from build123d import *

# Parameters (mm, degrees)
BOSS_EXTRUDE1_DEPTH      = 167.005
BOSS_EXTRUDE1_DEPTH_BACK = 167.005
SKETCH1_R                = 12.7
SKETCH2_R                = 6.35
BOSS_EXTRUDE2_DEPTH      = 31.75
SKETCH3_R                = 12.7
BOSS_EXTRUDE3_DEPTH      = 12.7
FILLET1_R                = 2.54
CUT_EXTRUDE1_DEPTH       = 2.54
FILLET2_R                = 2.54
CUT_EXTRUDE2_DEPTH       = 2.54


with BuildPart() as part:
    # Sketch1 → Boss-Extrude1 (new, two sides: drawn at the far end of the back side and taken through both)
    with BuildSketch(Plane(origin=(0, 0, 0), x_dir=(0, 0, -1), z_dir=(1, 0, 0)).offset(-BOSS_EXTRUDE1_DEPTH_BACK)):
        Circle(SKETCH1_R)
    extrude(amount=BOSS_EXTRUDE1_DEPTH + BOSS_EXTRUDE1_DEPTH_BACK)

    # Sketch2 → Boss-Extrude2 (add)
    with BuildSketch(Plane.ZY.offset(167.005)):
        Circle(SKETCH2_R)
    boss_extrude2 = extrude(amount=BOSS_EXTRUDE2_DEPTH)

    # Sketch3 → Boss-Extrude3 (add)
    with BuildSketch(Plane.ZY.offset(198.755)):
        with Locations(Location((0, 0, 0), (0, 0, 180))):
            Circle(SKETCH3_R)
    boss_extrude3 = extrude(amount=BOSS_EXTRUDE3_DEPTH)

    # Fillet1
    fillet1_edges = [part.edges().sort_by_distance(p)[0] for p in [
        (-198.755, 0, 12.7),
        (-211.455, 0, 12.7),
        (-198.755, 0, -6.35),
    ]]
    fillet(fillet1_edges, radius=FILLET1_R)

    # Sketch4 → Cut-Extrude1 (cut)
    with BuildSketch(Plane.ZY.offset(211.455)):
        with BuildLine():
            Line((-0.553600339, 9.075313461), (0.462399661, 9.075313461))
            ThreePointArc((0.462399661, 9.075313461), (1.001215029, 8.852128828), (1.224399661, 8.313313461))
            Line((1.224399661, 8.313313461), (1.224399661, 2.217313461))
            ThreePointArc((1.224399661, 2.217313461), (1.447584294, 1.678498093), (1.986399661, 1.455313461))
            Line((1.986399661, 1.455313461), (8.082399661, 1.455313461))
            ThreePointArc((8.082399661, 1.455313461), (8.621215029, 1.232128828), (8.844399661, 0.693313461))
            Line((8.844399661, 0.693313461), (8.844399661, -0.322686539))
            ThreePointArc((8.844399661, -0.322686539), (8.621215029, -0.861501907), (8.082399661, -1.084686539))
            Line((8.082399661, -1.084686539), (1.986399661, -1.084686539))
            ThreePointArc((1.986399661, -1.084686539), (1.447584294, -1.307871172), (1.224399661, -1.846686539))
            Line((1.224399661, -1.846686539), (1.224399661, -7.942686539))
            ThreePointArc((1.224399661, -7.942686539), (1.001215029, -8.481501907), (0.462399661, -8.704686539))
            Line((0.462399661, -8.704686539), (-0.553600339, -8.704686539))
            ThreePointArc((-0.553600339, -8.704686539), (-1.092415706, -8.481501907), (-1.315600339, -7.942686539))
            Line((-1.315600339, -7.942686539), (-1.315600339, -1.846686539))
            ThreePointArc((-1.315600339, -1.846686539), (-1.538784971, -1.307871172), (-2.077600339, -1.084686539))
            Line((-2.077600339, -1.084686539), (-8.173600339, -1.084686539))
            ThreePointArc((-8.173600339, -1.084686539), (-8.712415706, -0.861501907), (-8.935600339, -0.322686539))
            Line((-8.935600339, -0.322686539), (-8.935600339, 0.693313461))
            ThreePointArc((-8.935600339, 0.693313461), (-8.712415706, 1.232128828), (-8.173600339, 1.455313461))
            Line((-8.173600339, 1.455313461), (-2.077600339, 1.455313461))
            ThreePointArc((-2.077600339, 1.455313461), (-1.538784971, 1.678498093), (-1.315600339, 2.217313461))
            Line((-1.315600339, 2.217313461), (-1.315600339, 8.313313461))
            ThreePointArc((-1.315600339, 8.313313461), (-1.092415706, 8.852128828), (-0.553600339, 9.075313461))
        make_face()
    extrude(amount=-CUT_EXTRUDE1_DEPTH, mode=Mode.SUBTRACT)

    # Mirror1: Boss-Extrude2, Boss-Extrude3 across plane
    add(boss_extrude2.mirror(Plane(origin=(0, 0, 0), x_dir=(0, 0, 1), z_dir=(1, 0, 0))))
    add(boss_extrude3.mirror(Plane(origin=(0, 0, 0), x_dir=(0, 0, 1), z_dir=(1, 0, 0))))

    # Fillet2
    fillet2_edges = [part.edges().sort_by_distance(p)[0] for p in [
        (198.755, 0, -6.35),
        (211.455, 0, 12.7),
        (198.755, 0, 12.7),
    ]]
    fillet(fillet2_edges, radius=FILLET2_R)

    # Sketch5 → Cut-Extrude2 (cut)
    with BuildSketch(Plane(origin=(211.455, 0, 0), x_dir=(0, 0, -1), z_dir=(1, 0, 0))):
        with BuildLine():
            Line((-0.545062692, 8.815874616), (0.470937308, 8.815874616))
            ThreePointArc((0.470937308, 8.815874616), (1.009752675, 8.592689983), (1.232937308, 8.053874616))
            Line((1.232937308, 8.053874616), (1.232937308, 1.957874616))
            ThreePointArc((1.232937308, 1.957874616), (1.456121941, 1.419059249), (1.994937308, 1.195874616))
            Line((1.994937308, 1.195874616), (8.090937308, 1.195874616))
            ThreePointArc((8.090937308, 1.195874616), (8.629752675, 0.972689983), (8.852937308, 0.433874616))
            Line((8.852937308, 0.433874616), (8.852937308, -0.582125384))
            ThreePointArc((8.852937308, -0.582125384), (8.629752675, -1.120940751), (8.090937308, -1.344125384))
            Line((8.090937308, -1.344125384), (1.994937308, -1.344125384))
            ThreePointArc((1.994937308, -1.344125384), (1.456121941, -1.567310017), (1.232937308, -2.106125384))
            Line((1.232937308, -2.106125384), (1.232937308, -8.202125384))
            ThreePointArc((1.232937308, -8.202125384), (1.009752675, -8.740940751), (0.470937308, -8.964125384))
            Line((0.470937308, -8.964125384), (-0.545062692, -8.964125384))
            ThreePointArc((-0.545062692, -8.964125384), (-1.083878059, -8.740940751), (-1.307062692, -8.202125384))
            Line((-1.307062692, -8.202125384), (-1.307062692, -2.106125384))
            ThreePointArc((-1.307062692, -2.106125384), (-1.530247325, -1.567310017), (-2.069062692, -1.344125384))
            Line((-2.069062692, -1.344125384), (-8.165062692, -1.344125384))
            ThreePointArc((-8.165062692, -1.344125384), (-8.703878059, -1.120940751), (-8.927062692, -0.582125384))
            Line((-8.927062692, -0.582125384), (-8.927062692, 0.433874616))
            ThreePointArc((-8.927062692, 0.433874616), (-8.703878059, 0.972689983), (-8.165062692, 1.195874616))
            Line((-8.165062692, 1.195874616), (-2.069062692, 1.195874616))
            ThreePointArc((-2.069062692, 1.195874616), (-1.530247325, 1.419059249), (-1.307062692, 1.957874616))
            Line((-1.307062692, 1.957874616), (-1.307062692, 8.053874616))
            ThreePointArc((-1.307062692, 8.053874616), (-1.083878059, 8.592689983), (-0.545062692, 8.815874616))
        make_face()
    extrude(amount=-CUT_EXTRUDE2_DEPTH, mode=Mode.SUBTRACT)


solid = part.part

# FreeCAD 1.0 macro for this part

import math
import FreeCAD as App
import Part
import Sketcher
Q = App.Units.Quantity


def edges_at(feature, points):
    """Names of the edges that pass closest to the given points."""
    edges = feature.Shape.Edges
    near = lambda p: min(range(len(edges)), key=lambda i: edges[i].distToShape(Part.Vertex(*p))[0])
    return sorted({f"Edge{near(p) + 1}" for p in points})

doc = App.newDocument("Part")
body = doc.addObject("PartDesign::Body", "Body")

# Sketch on YZ plane
sketch1 = body.newObject("Sketcher::SketchObject", "Sketch")
sketch1.AttachmentSupport = (doc.getObject("YZ_Plane"), [""])
sketch1.MapMode = "FlatFace"
sketch1.addGeometry(Part.Circle(App.Vector(0, 0, 0), App.Vector(0, 0, 1), 13), False)
sketch1.addConstraint(Sketcher.Constraint("Coincident", 0, 3, -1, 1))
sketch1.addConstraint(Sketcher.Constraint("Diameter", 0, Q("1 in")))
pad1 = body.newObject("PartDesign::Pad", "Pad")
pad1.Profile = sketch1
pad1.Type = "TwoLengths"
pad1.Length = Q("6.575 in")
pad1.Length2 = Q("6.575 in")

# Sketch on YZ plane
sketch2 = body.newObject("Sketcher::SketchObject", "Sketch001")
sketch2.AttachmentSupport = (doc.getObject("YZ_Plane"), [""])
sketch2.MapMode = "FlatFace"
sketch2.AttachmentOffset = App.Placement(App.Vector(0, 0, -6.575 * 25.4), App.Rotation())
sketch2.addGeometry(Part.Circle(App.Vector(0, 0, 0), App.Vector(0, 0, 1), 6), False)
sketch2.addConstraint(Sketcher.Constraint("Coincident", 0, 3, -1, 1))
sketch2.addConstraint(Sketcher.Constraint("Diameter", 0, Q("0.5 in")))
pad2 = body.newObject("PartDesign::Pad", "Pad001")
pad2.Profile = sketch2
pad2.Length = Q("1.25 in")
pad2.Reversed = True

# Sketch on YZ plane
sketch3 = body.newObject("Sketcher::SketchObject", "Sketch002")
sketch3.AttachmentSupport = (doc.getObject("YZ_Plane"), [""])
sketch3.MapMode = "FlatFace"
sketch3.AttachmentOffset = App.Placement(App.Vector(0, 0, -7.825 * 25.4), App.Rotation())
sketch3.addGeometry(Part.Circle(App.Vector(0, 0, 0), App.Vector(0, 0, 1), 13), False)
sketch3.addConstraint(Sketcher.Constraint("Coincident", 0, 3, -1, 1))
sketch3.addConstraint(Sketcher.Constraint("Diameter", 0, Q("1 in")))
pad3 = body.newObject("PartDesign::Pad", "Pad002")
pad3.Profile = sketch3
pad3.Length = Q("0.5 in")
pad3.Reversed = True
doc.recompute()

fillet = body.newObject("PartDesign::Fillet", "Fillet")
fillet.Base = (pad3, edges_at(pad3, [(-198.755, 0, 12.7), (-211.455, 0, 12.7), (-198.755, 0, -6.35)]))
fillet.Radius = Q("0.1 in")

# Sketch on YZ plane
sketch4 = body.newObject("Sketcher::SketchObject", "Sketch003")
sketch4.AttachmentSupport = (doc.getObject("YZ_Plane"), [""])
sketch4.MapMode = "FlatFace"
sketch4.AttachmentOffset = App.Placement(App.Vector(0, 0, -8.325 * 25.4), App.Rotation())
sketch4.addGeometry(Part.LineSegment(App.Vector(9.1, 0.5, 0), App.Vector(9.1, -0.6, 0)), False)
sketch4.addGeometry(Part.ArcOfCircle(Part.Circle(App.Vector(8.3, -0.6, 0), App.Vector(0, 0, 1), 0.8), math.radians(-90), math.radians(0)), False)
sketch4.addGeometry(Part.LineSegment(App.Vector(8.3, -1.3, 0), App.Vector(2.2, -1.3, 0)), False)
sketch4.addGeometry(Part.ArcOfCircle(Part.Circle(App.Vector(2.2, -2.1, 0), App.Vector(0, 0, 1), 0.8), math.radians(90), math.radians(180)), False)
sketch4.addGeometry(Part.LineSegment(App.Vector(1.5, -2.1, 0), App.Vector(1.5, -8.2, 0)), False)
sketch4.addGeometry(Part.ArcOfCircle(Part.Circle(App.Vector(0.7, -8.2, 0), App.Vector(0, 0, 1), 0.8), math.radians(-90), math.radians(0)), False)
sketch4.addGeometry(Part.LineSegment(App.Vector(0.7, -8.9, 0), App.Vector(-0.3, -8.9, 0)), False)
sketch4.addGeometry(Part.ArcOfCircle(Part.Circle(App.Vector(-0.3, -8.2, 0), App.Vector(0, 0, 1), 0.8), math.radians(180), math.radians(270)), False)
sketch4.addGeometry(Part.LineSegment(App.Vector(-1.1, -8.2, 0), App.Vector(-1.1, -2.1, 0)), False)
sketch4.addGeometry(Part.ArcOfCircle(Part.Circle(App.Vector(-1.8, -2.1, 0), App.Vector(0, 0, 1), 0.8), math.radians(0), math.radians(90)), False)
sketch4.addGeometry(Part.LineSegment(App.Vector(-1.8, -1.3, 0), App.Vector(-7.9, -1.3, 0)), False)
sketch4.addGeometry(Part.ArcOfCircle(Part.Circle(App.Vector(-7.9, -0.6, 0), App.Vector(0, 0, 1), 0.8), math.radians(180), math.radians(270)), False)
sketch4.addGeometry(Part.LineSegment(App.Vector(-8.7, -0.6, 0), App.Vector(-8.7, 0.5, 0)), False)
sketch4.addGeometry(Part.ArcOfCircle(Part.Circle(App.Vector(-7.9, 0.5, 0), App.Vector(0, 0, 1), 0.8), math.radians(90), math.radians(180)), False)
sketch4.addGeometry(Part.LineSegment(App.Vector(-7.9, 1.2, 0), App.Vector(-1.8, 1.2, 0)), False)
sketch4.addGeometry(Part.ArcOfCircle(Part.Circle(App.Vector(-1.8, 2, 0), App.Vector(0, 0, 1), 0.8), math.radians(-90), math.radians(0)), False)
sketch4.addGeometry(Part.LineSegment(App.Vector(-1.1, 2, 0), App.Vector(-1.1, 8.1, 0)), False)
sketch4.addGeometry(Part.ArcOfCircle(Part.Circle(App.Vector(-0.3, 8.1, 0), App.Vector(0, 0, 1), 0.8), math.radians(90), math.radians(180)), False)
sketch4.addGeometry(Part.LineSegment(App.Vector(-0.3, 8.8, 0), App.Vector(0.7, 8.8, 0)), False)
sketch4.addGeometry(Part.ArcOfCircle(Part.Circle(App.Vector(0.7, 8.1, 0), App.Vector(0, 0, 1), 0.8), math.radians(0), math.radians(90)), False)
sketch4.addGeometry(Part.LineSegment(App.Vector(1.5, 8.1, 0), App.Vector(1.5, 2, 0)), False)
sketch4.addGeometry(Part.ArcOfCircle(Part.Circle(App.Vector(2.2, 2, 0), App.Vector(0, 0, 1), 0.8), math.radians(180), math.radians(270)), False)
sketch4.addGeometry(Part.LineSegment(App.Vector(2.2, 1.2, 0), App.Vector(8.3, 1.2, 0)), False)
sketch4.addGeometry(Part.ArcOfCircle(Part.Circle(App.Vector(8.3, 0.5, 0), App.Vector(0, 0, 1), 0.8), math.radians(0), math.radians(90)), False)
sketch4.addConstraint(Sketcher.Constraint("Tangent", 0, 2, 1, 2))
sketch4.addConstraint(Sketcher.Constraint("Tangent", 1, 1, 2, 1))
sketch4.addConstraint(Sketcher.Constraint("Tangent", 2, 2, 3, 1))
sketch4.addConstraint(Sketcher.Constraint("Tangent", 3, 2, 4, 1))
sketch4.addConstraint(Sketcher.Constraint("Tangent", 4, 2, 5, 2))
sketch4.addConstraint(Sketcher.Constraint("Tangent", 5, 1, 6, 1))
sketch4.addConstraint(Sketcher.Constraint("Tangent", 6, 2, 7, 2))
sketch4.addConstraint(Sketcher.Constraint("Tangent", 7, 1, 8, 1))
sketch4.addConstraint(Sketcher.Constraint("Tangent", 8, 2, 9, 1))
sketch4.addConstraint(Sketcher.Constraint("Tangent", 9, 2, 10, 1))
sketch4.addConstraint(Sketcher.Constraint("Tangent", 10, 2, 11, 2))
sketch4.addConstraint(Sketcher.Constraint("Tangent", 11, 1, 12, 1))
sketch4.addConstraint(Sketcher.Constraint("Tangent", 12, 2, 13, 2))
sketch4.addConstraint(Sketcher.Constraint("Tangent", 13, 1, 14, 1))
sketch4.addConstraint(Sketcher.Constraint("Tangent", 14, 2, 15, 1))
sketch4.addConstraint(Sketcher.Constraint("Tangent", 15, 2, 16, 1))
sketch4.addConstraint(Sketcher.Constraint("Tangent", 16, 2, 17, 2))
sketch4.addConstraint(Sketcher.Constraint("Tangent", 17, 1, 18, 1))
sketch4.addConstraint(Sketcher.Constraint("Tangent", 18, 2, 19, 2))
sketch4.addConstraint(Sketcher.Constraint("Tangent", 19, 1, 20, 1))
sketch4.addConstraint(Sketcher.Constraint("Tangent", 20, 2, 21, 1))
sketch4.addConstraint(Sketcher.Constraint("Tangent", 21, 2, 22, 1))
sketch4.addConstraint(Sketcher.Constraint("Tangent", 22, 2, 23, 2))
sketch4.addConstraint(Sketcher.Constraint("Tangent", 23, 1, 0, 1))
sketch4.addConstraint(Sketcher.Constraint("Vertical", 0))
sketch4.addConstraint(Sketcher.Constraint("Horizontal", 2))
sketch4.addConstraint(Sketcher.Constraint("Vertical", 4))
sketch4.addConstraint(Sketcher.Constraint("Horizontal", 6))
sketch4.addConstraint(Sketcher.Constraint("Vertical", 8))
sketch4.addConstraint(Sketcher.Constraint("Horizontal", 10))
sketch4.addConstraint(Sketcher.Constraint("Vertical", 12))
sketch4.addConstraint(Sketcher.Constraint("Horizontal", 14))
sketch4.addConstraint(Sketcher.Constraint("Vertical", 16))
sketch4.addConstraint(Sketcher.Constraint("Horizontal", 18))
sketch4.addConstraint(Sketcher.Constraint("Vertical", 20))
sketch4.addConstraint(Sketcher.Constraint("Horizontal", 22))
sketch4.addConstraint(Sketcher.Constraint("Equal", 1, 3))
sketch4.addConstraint(Sketcher.Constraint("Equal", 3, 5))
sketch4.addConstraint(Sketcher.Constraint("Equal", 5, 7))
sketch4.addConstraint(Sketcher.Constraint("Equal", 7, 9))
sketch4.addConstraint(Sketcher.Constraint("Equal", 9, 11))
sketch4.addConstraint(Sketcher.Constraint("Equal", 11, 13))
sketch4.addConstraint(Sketcher.Constraint("Equal", 13, 15))
sketch4.addConstraint(Sketcher.Constraint("Equal", 15, 17))
sketch4.addConstraint(Sketcher.Constraint("Equal", 17, 19))
sketch4.addConstraint(Sketcher.Constraint("Equal", 19, 21))
sketch4.addConstraint(Sketcher.Constraint("Equal", 21, 23))
sketch4.addConstraint(Sketcher.Constraint("Horizontal", 3, 3, 9, 3))
sketch4.addConstraint(Sketcher.Constraint("Horizontal", 15, 3, 21, 3))
sketch4.addConstraint(Sketcher.Constraint("Vertical", 9, 3, 15, 3))
sketch4.addConstraint(Sketcher.Constraint("Vertical", 5, 3, 19, 3))
sketch4.addConstraint(Sketcher.Constraint("Equal", 2, 10))
sketch4.addConstraint(Sketcher.Constraint("Equal", 18, 0))
sketch4.addConstraint(Sketcher.Constraint("Equal", 22, 4))
sketch4.addConstraint(Sketcher.Constraint("Equal", 8, 16))
sketch4.addConstraint(Sketcher.Constraint("Radius", 1, Q("0.03 in")))
sketch4.addConstraint(Sketcher.Constraint("DistanceX", 2, 2, 2, 1, Q("0.24 in")))
sketch4.addConstraint(Sketcher.Constraint("DistanceX", 6, 2, 6, 1, Q("0.04 in")))
sketch4.addConstraint(Sketcher.Constraint("DistanceY", 1, 3, -1, 1, 0.5536))
sketch4.addConstraint(Sketcher.Constraint("DistanceX", -1, 1, 1, 3, 8.313313))
pocket1 = body.newObject("PartDesign::Pocket", "Pocket")
pocket1.Profile = sketch4
pocket1.Length = Q("0.1 in")
pocket1.Reversed = True
doc.recompute()

mirrored = body.newObject("PartDesign::Mirrored", "Mirrored")
mirrored.Originals = [pad2, pad3]
mirrored.MirrorPlane = (doc.getObject("YZ_Plane"), [""])
body.Tip = mirrored
doc.recompute()

fillet2 = body.newObject("PartDesign::Fillet", "Fillet001")
fillet2.Base = (mirrored, edges_at(mirrored, [(198.755, 0, -6.35), (211.455, 0, 12.7), (198.755, 0, 12.7)]))
fillet2.Radius = Q("0.1 in")

# Sketch on YZ plane
sketch5 = body.newObject("Sketcher::SketchObject", "Sketch004")
sketch5.AttachmentSupport = (doc.getObject("YZ_Plane"), [""])
sketch5.MapMode = "FlatFace"
sketch5.AttachmentOffset = App.Placement(App.Vector(0, 0, 8.325 * 25.4), App.Rotation())
sketch5.addGeometry(Part.LineSegment(App.Vector(8.8, -0.5, 0), App.Vector(8.8, 0.5, 0)), False)
sketch5.addGeometry(Part.ArcOfCircle(Part.Circle(App.Vector(8.1, 0.5, 0), App.Vector(0, 0, 1), 0.8), math.radians(0), math.radians(90)), False)
sketch5.addGeometry(Part.LineSegment(App.Vector(8.1, 1.3, 0), App.Vector(2, 1.3, 0)), False)
sketch5.addGeometry(Part.ArcOfCircle(Part.Circle(App.Vector(2, 2.1, 0), App.Vector(0, 0, 1), 0.8), math.radians(-180), math.radians(-90)), False)
sketch5.addGeometry(Part.LineSegment(App.Vector(1.2, 2.1, 0), App.Vector(1.2, 8.2, 0)), False)
sketch5.addGeometry(Part.ArcOfCircle(Part.Circle(App.Vector(0.4, 8.2, 0), App.Vector(0, 0, 1), 0.8), math.radians(0), math.radians(90)), False)
sketch5.addGeometry(Part.LineSegment(App.Vector(0.4, 8.9, 0), App.Vector(-0.6, 8.9, 0)), False)
sketch5.addGeometry(Part.ArcOfCircle(Part.Circle(App.Vector(-0.6, 8.2, 0), App.Vector(0, 0, 1), 0.8), math.radians(90), math.radians(180)), False)
sketch5.addGeometry(Part.LineSegment(App.Vector(-1.3, 8.2, 0), App.Vector(-1.3, 2.1, 0)), False)
sketch5.addGeometry(Part.ArcOfCircle(Part.Circle(App.Vector(-2.1, 2.1, 0), App.Vector(0, 0, 1), 0.8), math.radians(-90), math.radians(0)), False)
sketch5.addGeometry(Part.LineSegment(App.Vector(-2.1, 1.3, 0), App.Vector(-8.2, 1.3, 0)), False)
sketch5.addGeometry(Part.ArcOfCircle(Part.Circle(App.Vector(-8.2, 0.5, 0), App.Vector(0, 0, 1), 0.8), math.radians(90), math.radians(180)), False)
sketch5.addGeometry(Part.LineSegment(App.Vector(-9, 0.5, 0), App.Vector(-9, -0.5, 0)), False)
sketch5.addGeometry(Part.ArcOfCircle(Part.Circle(App.Vector(-8.2, -0.5, 0), App.Vector(0, 0, 1), 0.8), math.radians(-180), math.radians(-90)), False)
sketch5.addGeometry(Part.LineSegment(App.Vector(-8.2, -1.2, 0), App.Vector(-2.1, -1.2, 0)), False)
sketch5.addGeometry(Part.ArcOfCircle(Part.Circle(App.Vector(-2.1, -2, 0), App.Vector(0, 0, 1), 0.8), math.radians(0), math.radians(90)), False)
sketch5.addGeometry(Part.LineSegment(App.Vector(-1.3, -2, 0), App.Vector(-1.3, -8.1, 0)), False)
sketch5.addGeometry(Part.ArcOfCircle(Part.Circle(App.Vector(-0.6, -8.1, 0), App.Vector(0, 0, 1), 0.8), math.radians(-180), math.radians(-90)), False)
sketch5.addGeometry(Part.LineSegment(App.Vector(-0.6, -8.9, 0), App.Vector(0.4, -8.9, 0)), False)
sketch5.addGeometry(Part.ArcOfCircle(Part.Circle(App.Vector(0.4, -8.1, 0), App.Vector(0, 0, 1), 0.8), math.radians(-90), math.radians(0)), False)
sketch5.addGeometry(Part.LineSegment(App.Vector(1.2, -8.1, 0), App.Vector(1.2, -2, 0)), False)
sketch5.addGeometry(Part.ArcOfCircle(Part.Circle(App.Vector(2, -2, 0), App.Vector(0, 0, 1), 0.8), math.radians(90), math.radians(180)), False)
sketch5.addGeometry(Part.LineSegment(App.Vector(2, -1.2, 0), App.Vector(8.1, -1.2, 0)), False)
sketch5.addGeometry(Part.ArcOfCircle(Part.Circle(App.Vector(8.1, -0.5, 0), App.Vector(0, 0, 1), 0.8), math.radians(-90), math.radians(0)), False)
sketch5.addConstraint(Sketcher.Constraint("Tangent", 0, 2, 1, 1))
sketch5.addConstraint(Sketcher.Constraint("Tangent", 1, 2, 2, 1))
sketch5.addConstraint(Sketcher.Constraint("Tangent", 2, 2, 3, 2))
sketch5.addConstraint(Sketcher.Constraint("Tangent", 3, 1, 4, 1))
sketch5.addConstraint(Sketcher.Constraint("Tangent", 4, 2, 5, 1))
sketch5.addConstraint(Sketcher.Constraint("Tangent", 5, 2, 6, 1))
sketch5.addConstraint(Sketcher.Constraint("Tangent", 6, 2, 7, 1))
sketch5.addConstraint(Sketcher.Constraint("Tangent", 7, 2, 8, 1))
sketch5.addConstraint(Sketcher.Constraint("Tangent", 8, 2, 9, 2))
sketch5.addConstraint(Sketcher.Constraint("Tangent", 9, 1, 10, 1))
sketch5.addConstraint(Sketcher.Constraint("Tangent", 10, 2, 11, 1))
sketch5.addConstraint(Sketcher.Constraint("Tangent", 11, 2, 12, 1))
sketch5.addConstraint(Sketcher.Constraint("Tangent", 12, 2, 13, 1))
sketch5.addConstraint(Sketcher.Constraint("Tangent", 13, 2, 14, 1))
sketch5.addConstraint(Sketcher.Constraint("Tangent", 14, 2, 15, 2))
sketch5.addConstraint(Sketcher.Constraint("Tangent", 15, 1, 16, 1))
sketch5.addConstraint(Sketcher.Constraint("Tangent", 16, 2, 17, 1))
sketch5.addConstraint(Sketcher.Constraint("Tangent", 17, 2, 18, 1))
sketch5.addConstraint(Sketcher.Constraint("Tangent", 18, 2, 19, 1))
sketch5.addConstraint(Sketcher.Constraint("Tangent", 19, 2, 20, 1))
sketch5.addConstraint(Sketcher.Constraint("Tangent", 20, 2, 21, 2))
sketch5.addConstraint(Sketcher.Constraint("Tangent", 21, 1, 22, 1))
sketch5.addConstraint(Sketcher.Constraint("Tangent", 22, 2, 23, 1))
sketch5.addConstraint(Sketcher.Constraint("Tangent", 23, 2, 0, 1))
sketch5.addConstraint(Sketcher.Constraint("Vertical", 0))
sketch5.addConstraint(Sketcher.Constraint("Horizontal", 2))
sketch5.addConstraint(Sketcher.Constraint("Vertical", 4))
sketch5.addConstraint(Sketcher.Constraint("Horizontal", 6))
sketch5.addConstraint(Sketcher.Constraint("Vertical", 8))
sketch5.addConstraint(Sketcher.Constraint("Horizontal", 10))
sketch5.addConstraint(Sketcher.Constraint("Vertical", 12))
sketch5.addConstraint(Sketcher.Constraint("Horizontal", 14))
sketch5.addConstraint(Sketcher.Constraint("Vertical", 16))
sketch5.addConstraint(Sketcher.Constraint("Horizontal", 18))
sketch5.addConstraint(Sketcher.Constraint("Vertical", 20))
sketch5.addConstraint(Sketcher.Constraint("Horizontal", 22))
sketch5.addConstraint(Sketcher.Constraint("Equal", 1, 3))
sketch5.addConstraint(Sketcher.Constraint("Equal", 3, 5))
sketch5.addConstraint(Sketcher.Constraint("Equal", 5, 7))
sketch5.addConstraint(Sketcher.Constraint("Equal", 7, 9))
sketch5.addConstraint(Sketcher.Constraint("Equal", 9, 11))
sketch5.addConstraint(Sketcher.Constraint("Equal", 11, 13))
sketch5.addConstraint(Sketcher.Constraint("Equal", 13, 15))
sketch5.addConstraint(Sketcher.Constraint("Equal", 15, 17))
sketch5.addConstraint(Sketcher.Constraint("Equal", 17, 19))
sketch5.addConstraint(Sketcher.Constraint("Equal", 19, 21))
sketch5.addConstraint(Sketcher.Constraint("Equal", 21, 23))
sketch5.addConstraint(Sketcher.Constraint("Horizontal", 3, 3, 9, 3))
sketch5.addConstraint(Sketcher.Constraint("Horizontal", 15, 3, 21, 3))
sketch5.addConstraint(Sketcher.Constraint("Vertical", 9, 3, 15, 3))
sketch5.addConstraint(Sketcher.Constraint("Vertical", 5, 3, 19, 3))
sketch5.addConstraint(Sketcher.Constraint("Equal", 2, 10))
sketch5.addConstraint(Sketcher.Constraint("Equal", 18, 0))
sketch5.addConstraint(Sketcher.Constraint("Equal", 22, 4))
sketch5.addConstraint(Sketcher.Constraint("Equal", 8, 16))
sketch5.addConstraint(Sketcher.Constraint("Radius", 1, Q("0.03 in")))
sketch5.addConstraint(Sketcher.Constraint("DistanceX", 2, 2, 2, 1, Q("0.24 in")))
sketch5.addConstraint(Sketcher.Constraint("DistanceX", 6, 2, 6, 1, Q("0.04 in")))
sketch5.addConstraint(Sketcher.Constraint("DistanceX", -1, 1, 1, 3, 8.053875))
sketch5.addConstraint(Sketcher.Constraint("DistanceY", -1, 1, 1, 3, 0.545063))
pocket2 = body.newObject("PartDesign::Pocket", "Pocket001")
pocket2.Profile = sketch5
pocket2.Length = Q("0.1 in")

doc.recompute()
